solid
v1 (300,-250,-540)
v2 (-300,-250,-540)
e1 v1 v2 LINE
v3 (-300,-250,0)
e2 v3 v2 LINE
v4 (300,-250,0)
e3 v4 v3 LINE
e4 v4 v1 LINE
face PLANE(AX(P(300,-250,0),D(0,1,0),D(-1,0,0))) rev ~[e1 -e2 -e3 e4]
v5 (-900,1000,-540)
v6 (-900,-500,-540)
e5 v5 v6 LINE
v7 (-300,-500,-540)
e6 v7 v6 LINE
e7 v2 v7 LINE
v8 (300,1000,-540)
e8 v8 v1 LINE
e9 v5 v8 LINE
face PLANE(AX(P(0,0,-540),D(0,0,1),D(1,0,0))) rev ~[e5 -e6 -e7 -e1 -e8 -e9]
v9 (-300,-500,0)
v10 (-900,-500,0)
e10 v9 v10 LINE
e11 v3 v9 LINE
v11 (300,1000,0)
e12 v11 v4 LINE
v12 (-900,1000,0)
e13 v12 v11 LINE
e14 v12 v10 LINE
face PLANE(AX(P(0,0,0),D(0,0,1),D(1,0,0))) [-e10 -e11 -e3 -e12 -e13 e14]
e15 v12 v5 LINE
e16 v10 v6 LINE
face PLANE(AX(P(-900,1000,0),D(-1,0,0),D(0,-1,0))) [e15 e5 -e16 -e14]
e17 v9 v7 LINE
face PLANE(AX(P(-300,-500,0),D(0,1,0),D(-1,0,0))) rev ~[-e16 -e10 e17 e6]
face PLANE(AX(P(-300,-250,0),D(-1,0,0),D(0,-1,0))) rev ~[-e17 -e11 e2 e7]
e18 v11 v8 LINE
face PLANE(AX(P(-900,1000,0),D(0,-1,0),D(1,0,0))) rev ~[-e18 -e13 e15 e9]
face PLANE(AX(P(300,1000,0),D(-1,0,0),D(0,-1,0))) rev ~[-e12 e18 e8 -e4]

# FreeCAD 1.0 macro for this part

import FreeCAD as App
import Part
import Sketcher
from FreeCAD import Vector
Q = App.Units.Quantity

doc = App.newDocument("Part")
body = doc.addObject("PartDesign::Body", "Body")

# Sketch on XY plane
sketch1 = doc.addObject("Sketcher::SketchObject", "Sketch")
body.addObject(sketch1)
sketch1.AttachmentSupport = (doc.XY_Plane, [""])
sketch1.MapMode = "FlatFace"
sketch1.addGeometry([
    Part.LineSegment(Vector(-900, -500, 0), Vector(-300, -500, 0)),  # 0
    Part.LineSegment(Vector(-300, -500, 0), Vector(-300, -250, 0)),  # 1
    Part.LineSegment(Vector(-300, -250, 0), Vector(300, -250, 0)),  # 2
    Part.LineSegment(Vector(300, -250, 0), Vector(300, 1000, 0)),  # 3
    Part.LineSegment(Vector(300, 1000, 0), Vector(-900, 1000, 0)),  # 4
    Part.LineSegment(Vector(-900, 1000, 0), Vector(-900, -500, 0)),  # 5
], False)
sketch1.addConstraint([
    Sketcher.Constraint("Coincident", 0, 2, 1, 1),
    Sketcher.Constraint("Coincident", 1, 2, 2, 1),
    Sketcher.Constraint("Coincident", 2, 2, 3, 1),
    Sketcher.Constraint("Coincident", 3, 2, 4, 1),
    Sketcher.Constraint("Coincident", 4, 2, 5, 1),
    Sketcher.Constraint("Coincident", 5, 2, 0, 1),
    Sketcher.Constraint("Horizontal", 0),
    Sketcher.Constraint("Vertical", 1),
    Sketcher.Constraint("Horizontal", 2),
    Sketcher.Constraint("Vertical", 3),
    Sketcher.Constraint("Horizontal", 4),
    Sketcher.Constraint("Vertical", 5),
    Sketcher.Constraint("Equal", 0, 2),
    Sketcher.Constraint("DistanceX", 0, 1, 0, 2, Q("600 mm")),
    Sketcher.Constraint("DistanceY", 1, 1, 1, 2, Q("250 mm")),
    Sketcher.Constraint("DistanceY", 3, 1, 3, 2, Q("1250 mm")),
    Sketcher.Constraint("DistanceX", 0, 2, -1, 1, Q("300 mm")),
    Sketcher.Constraint("DistanceY", 0, 2, -1, 1, Q("500 mm")),
])
pad1 = doc.addObject("PartDesign::Pad", "Pad")
body.addObject(pad1)
pad1.Profile = sketch1
pad1.Length = 540
pad1.Reversed = True

doc.recompute()
